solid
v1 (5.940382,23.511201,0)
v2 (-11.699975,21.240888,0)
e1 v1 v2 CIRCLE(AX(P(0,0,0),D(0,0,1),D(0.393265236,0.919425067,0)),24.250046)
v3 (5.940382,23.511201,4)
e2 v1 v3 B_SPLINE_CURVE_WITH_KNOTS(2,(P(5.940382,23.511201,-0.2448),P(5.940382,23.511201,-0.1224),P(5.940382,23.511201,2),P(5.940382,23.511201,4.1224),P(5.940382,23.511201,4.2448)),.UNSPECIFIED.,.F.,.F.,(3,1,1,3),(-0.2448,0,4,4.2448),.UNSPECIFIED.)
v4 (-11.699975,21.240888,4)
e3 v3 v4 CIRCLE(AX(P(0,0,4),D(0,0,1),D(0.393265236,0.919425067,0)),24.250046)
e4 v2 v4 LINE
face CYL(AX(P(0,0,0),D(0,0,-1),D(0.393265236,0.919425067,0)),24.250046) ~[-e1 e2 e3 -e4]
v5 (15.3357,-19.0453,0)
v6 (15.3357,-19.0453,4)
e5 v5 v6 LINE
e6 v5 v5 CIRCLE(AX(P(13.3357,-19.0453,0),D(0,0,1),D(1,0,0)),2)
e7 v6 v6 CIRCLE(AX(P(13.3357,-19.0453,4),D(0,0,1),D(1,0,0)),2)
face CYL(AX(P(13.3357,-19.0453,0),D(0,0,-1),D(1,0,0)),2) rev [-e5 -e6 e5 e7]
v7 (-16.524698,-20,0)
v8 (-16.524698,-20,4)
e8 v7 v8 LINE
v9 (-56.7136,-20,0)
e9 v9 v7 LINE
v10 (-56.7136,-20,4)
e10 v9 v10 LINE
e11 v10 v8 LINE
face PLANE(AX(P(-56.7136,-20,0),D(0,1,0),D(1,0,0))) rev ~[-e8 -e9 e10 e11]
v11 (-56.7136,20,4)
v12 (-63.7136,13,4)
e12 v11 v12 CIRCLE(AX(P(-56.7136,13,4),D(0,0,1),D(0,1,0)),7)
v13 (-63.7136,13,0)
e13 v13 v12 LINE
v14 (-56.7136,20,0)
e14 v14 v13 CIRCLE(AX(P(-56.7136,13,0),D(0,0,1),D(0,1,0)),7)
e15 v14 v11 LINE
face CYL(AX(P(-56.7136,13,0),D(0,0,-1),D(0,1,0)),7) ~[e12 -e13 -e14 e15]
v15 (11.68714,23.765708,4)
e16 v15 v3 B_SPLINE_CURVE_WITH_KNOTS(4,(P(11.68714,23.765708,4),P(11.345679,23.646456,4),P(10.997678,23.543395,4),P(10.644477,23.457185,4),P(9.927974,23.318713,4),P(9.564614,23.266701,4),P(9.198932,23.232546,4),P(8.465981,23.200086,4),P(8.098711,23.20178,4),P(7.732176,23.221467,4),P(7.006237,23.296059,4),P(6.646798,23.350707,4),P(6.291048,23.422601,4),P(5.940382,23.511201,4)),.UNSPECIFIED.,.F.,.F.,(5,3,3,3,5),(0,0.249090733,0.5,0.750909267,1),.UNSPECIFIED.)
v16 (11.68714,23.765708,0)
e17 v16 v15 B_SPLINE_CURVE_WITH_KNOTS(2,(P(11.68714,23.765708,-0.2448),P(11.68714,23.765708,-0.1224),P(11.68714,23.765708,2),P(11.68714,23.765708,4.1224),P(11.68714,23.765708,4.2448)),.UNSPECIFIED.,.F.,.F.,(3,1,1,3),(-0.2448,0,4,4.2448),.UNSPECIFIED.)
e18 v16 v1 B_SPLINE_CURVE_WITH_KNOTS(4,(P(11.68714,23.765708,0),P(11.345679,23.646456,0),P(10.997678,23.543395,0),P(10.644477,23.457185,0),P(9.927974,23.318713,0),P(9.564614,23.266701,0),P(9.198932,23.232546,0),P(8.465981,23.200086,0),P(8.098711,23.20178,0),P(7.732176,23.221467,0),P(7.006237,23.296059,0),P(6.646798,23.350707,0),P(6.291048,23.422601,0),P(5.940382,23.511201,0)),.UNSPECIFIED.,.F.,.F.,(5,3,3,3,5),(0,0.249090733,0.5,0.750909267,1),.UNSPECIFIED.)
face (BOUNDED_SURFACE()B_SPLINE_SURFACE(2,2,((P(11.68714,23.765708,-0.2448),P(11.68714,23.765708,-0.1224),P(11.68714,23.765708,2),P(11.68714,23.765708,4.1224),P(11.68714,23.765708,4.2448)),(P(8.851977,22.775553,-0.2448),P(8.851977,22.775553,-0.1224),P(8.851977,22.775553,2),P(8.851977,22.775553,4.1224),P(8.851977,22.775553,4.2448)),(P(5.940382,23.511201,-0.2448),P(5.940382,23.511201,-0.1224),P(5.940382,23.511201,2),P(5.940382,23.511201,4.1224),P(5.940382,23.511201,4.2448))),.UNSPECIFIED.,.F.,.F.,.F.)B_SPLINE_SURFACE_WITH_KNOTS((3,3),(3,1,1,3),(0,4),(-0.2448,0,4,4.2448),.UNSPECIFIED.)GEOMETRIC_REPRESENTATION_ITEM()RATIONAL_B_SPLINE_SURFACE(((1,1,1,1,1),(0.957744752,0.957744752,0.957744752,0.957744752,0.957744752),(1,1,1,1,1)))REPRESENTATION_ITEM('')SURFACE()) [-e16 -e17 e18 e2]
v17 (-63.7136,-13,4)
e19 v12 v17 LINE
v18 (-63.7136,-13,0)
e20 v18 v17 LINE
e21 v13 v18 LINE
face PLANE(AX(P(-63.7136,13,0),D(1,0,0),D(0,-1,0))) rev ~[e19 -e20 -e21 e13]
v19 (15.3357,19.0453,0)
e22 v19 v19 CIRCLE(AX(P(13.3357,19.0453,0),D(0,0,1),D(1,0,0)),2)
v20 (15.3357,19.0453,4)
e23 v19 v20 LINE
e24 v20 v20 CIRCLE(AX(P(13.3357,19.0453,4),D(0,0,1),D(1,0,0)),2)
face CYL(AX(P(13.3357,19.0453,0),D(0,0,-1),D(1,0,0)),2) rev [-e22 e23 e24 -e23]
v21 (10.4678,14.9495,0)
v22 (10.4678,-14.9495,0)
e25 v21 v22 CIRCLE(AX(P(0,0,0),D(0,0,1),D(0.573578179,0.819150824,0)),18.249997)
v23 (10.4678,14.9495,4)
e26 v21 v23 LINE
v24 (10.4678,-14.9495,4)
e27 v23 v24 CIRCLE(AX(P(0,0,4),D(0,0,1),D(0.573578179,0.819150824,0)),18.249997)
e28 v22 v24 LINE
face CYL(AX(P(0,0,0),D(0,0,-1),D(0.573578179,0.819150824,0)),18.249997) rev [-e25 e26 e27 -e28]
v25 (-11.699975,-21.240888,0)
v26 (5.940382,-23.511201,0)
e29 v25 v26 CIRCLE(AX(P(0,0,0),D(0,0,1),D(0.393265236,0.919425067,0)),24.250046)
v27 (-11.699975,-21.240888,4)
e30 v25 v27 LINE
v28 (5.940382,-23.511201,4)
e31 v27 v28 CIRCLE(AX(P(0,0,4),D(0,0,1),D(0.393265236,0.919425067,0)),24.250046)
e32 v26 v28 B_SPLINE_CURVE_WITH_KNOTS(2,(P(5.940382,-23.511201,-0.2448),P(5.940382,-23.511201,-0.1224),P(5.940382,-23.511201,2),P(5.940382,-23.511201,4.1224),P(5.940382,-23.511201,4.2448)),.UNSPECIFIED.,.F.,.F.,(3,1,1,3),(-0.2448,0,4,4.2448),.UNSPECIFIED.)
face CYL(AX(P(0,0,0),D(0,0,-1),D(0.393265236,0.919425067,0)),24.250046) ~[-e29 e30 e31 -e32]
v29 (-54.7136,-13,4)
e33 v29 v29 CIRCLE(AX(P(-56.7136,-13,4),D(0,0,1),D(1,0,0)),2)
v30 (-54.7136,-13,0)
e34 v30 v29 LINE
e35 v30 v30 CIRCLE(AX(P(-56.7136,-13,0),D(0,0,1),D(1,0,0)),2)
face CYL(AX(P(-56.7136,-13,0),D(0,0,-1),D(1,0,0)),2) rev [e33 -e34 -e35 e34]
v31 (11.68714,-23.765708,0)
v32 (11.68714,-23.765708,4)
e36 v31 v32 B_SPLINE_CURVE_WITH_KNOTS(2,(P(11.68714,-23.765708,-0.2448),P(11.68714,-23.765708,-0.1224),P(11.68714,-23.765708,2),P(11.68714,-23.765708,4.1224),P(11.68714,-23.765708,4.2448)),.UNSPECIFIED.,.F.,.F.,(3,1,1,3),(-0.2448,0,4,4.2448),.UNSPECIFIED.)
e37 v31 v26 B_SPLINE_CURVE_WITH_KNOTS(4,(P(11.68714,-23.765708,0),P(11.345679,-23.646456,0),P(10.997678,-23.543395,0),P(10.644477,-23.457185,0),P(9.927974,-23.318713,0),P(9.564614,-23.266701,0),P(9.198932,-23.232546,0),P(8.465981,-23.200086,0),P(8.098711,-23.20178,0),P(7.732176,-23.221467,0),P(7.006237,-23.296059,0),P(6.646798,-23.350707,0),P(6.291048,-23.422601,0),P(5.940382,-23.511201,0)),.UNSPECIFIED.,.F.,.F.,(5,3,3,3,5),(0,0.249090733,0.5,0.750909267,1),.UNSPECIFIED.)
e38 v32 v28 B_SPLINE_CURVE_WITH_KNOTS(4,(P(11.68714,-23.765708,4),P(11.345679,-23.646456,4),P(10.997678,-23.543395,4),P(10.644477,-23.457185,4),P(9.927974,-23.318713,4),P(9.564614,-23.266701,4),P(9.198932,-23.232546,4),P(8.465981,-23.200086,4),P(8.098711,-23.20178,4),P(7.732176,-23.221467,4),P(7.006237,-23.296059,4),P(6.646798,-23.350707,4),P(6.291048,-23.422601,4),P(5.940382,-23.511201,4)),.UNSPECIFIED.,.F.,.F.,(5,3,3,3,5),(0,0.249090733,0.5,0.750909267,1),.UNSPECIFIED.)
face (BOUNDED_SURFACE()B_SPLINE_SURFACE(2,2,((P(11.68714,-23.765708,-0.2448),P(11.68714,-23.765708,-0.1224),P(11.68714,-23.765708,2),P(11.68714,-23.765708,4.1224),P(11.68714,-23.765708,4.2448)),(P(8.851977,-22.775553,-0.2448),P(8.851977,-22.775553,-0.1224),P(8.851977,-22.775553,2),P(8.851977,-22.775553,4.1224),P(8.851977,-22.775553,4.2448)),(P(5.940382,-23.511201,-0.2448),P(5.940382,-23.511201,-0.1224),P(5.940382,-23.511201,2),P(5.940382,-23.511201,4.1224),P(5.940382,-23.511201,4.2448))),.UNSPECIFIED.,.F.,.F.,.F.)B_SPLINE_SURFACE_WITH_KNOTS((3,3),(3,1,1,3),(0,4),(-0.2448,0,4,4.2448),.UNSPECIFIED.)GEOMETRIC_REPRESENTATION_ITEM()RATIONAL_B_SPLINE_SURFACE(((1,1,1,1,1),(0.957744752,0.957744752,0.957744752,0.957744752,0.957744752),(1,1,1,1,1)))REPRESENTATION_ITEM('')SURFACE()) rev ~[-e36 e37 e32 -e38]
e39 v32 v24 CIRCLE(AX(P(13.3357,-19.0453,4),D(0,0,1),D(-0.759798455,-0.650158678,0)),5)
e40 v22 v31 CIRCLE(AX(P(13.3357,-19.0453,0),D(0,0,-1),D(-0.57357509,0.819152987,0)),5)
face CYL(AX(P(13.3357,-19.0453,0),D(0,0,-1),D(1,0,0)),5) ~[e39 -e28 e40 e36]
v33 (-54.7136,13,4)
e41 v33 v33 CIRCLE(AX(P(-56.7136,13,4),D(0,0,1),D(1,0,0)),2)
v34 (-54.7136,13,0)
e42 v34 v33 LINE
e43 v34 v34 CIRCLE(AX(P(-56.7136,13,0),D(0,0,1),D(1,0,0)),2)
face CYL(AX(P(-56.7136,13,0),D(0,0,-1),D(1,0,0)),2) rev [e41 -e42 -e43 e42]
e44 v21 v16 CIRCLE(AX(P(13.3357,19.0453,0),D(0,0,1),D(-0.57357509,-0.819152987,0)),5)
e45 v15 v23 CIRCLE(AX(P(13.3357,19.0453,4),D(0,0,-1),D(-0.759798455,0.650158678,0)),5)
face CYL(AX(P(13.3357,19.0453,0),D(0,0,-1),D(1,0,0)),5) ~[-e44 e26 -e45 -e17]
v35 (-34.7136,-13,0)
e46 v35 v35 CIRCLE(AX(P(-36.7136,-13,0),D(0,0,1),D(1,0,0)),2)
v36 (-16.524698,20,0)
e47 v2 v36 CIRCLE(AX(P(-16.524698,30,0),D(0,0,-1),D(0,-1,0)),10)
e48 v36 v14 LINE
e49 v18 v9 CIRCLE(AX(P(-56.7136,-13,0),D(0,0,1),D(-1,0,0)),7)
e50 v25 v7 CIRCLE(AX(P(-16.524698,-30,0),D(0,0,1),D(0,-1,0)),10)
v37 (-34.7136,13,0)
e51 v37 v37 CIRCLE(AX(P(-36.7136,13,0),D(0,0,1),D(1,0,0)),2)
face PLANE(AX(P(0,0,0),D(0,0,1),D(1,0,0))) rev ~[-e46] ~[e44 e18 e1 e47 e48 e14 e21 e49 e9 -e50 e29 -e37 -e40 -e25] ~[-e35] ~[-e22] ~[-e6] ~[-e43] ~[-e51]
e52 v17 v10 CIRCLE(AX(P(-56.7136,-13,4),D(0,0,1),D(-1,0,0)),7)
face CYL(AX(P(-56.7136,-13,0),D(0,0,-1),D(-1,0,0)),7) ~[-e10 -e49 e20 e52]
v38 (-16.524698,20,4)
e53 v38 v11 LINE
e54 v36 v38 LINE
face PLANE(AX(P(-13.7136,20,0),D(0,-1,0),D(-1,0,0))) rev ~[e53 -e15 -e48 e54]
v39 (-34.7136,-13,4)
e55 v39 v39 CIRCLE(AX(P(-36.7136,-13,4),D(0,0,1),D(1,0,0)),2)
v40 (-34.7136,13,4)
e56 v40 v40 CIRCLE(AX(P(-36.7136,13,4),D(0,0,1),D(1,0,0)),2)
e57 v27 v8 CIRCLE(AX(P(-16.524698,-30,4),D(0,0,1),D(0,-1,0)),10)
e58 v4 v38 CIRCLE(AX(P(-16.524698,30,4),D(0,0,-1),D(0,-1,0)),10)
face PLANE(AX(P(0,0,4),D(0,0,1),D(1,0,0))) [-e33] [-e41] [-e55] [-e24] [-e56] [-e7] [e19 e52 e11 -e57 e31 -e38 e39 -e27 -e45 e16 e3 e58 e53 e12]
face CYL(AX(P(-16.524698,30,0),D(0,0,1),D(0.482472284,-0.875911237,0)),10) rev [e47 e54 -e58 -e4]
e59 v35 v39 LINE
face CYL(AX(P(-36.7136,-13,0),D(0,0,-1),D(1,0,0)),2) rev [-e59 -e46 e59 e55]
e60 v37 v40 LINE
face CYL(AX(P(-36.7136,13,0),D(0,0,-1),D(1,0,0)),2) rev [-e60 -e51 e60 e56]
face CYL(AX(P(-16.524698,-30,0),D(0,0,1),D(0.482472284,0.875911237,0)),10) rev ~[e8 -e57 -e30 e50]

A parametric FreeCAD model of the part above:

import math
import FreeCAD as App
import Part
import Sketcher
Q = App.Units.Quantity


def edges_at(feature, points):
    """Names of the edges that pass closest to the given points."""
    edges = feature.Shape.Edges
    near = lambda p: min(range(len(edges)), key=lambda i: edges[i].distToShape(Part.Vertex(*p))[0])
    return sorted({f"Edge{near(p) + 1}" for p in points})

doc = App.newDocument("Part")
body = doc.addObject("PartDesign::Body", "Body")

# Sketch on XY plane
sketch1 = body.newObject("Sketcher::SketchObject", "Sketch")
sketch1.AttachmentSupport = (doc.getObject("XY_Plane"), [""])
sketch1.MapMode = "FlatFace"
sketch1.addGeometry([
    Part.ArcOfCircle(Part.Circle(App.Vector(13.3, 19, 0), App.Vector(0, 0, 1), 5), math.radians(-125), math.radians(139)),  # 0
    Part.ArcOfCircle(Part.Circle(App.Vector(0, 0, 0), App.Vector(0, 0, 1), 24.3), math.radians(67), math.radians(124)),  # 1
    Part.LineSegment(App.Vector(-13.7, 20, 0), App.Vector(-56.7, 20, 0)),  # 2
    Part.ArcOfCircle(Part.Circle(App.Vector(-56.7, 13, 0), App.Vector(0, 0, 1), 7), math.radians(90), math.radians(180)),  # 3
    Part.LineSegment(App.Vector(-63.7, 13, 0), App.Vector(-63.7, -13, 0)),  # 4
    Part.ArcOfCircle(Part.Circle(App.Vector(-56.7, -13, 0), App.Vector(0, 0, 1), 7), math.radians(180), math.radians(270)),  # 5
    Part.LineSegment(App.Vector(-56.7, -20, 0), App.Vector(-13.7, -20, 0)),  # 6
    Part.ArcOfCircle(Part.Circle(App.Vector(0, 0, 0), App.Vector(0, 0, 1), 24.3), math.radians(-124), math.radians(-67)),  # 7
    Part.ArcOfCircle(Part.Circle(App.Vector(13.3, -19, 0), App.Vector(0, 0, 1), 5), math.radians(-139), math.radians(125)),  # 8
    Part.ArcOfCircle(Part.Circle(App.Vector(0, 0, 0), App.Vector(0, 0, 1), 18.2), math.radians(55), math.radians(305)),  # 9
    Part.Circle(App.Vector(13.3, 19, 0), App.Vector(0, 0, 1), 2),  # 10
    Part.Circle(App.Vector(13.3, -19, 0), App.Vector(0, 0, 1), 2),  # 11
    Part.Circle(App.Vector(-36.7, 13, 0), App.Vector(0, 0, 1), 2),  # 12
    Part.Circle(App.Vector(-56.7, -13, 0), App.Vector(0, 0, 1), 2),  # 13
    Part.Circle(App.Vector(-36.7, -13, 0), App.Vector(0, 0, 1), 2),  # 14
    Part.Circle(App.Vector(-56.7, 13, 0), App.Vector(0, 0, 1), 2),  # 15
], False)
sketch1.addConstraint([
    Sketcher.Constraint("Coincident", 0, 2, 1, 1),
    Sketcher.Constraint("Coincident", 1, 2, 2, 1),
    Sketcher.Constraint("Tangent", 2, 2, 3, 1),
    Sketcher.Constraint("Tangent", 3, 2, 4, 1),
    Sketcher.Constraint("Tangent", 4, 2, 5, 1),
    Sketcher.Constraint("Tangent", 5, 2, 6, 1),
    Sketcher.Constraint("Coincident", 6, 2, 7, 1),
    Sketcher.Constraint("Coincident", 7, 2, 8, 1),
    Sketcher.Constraint("Tangent", 8, 2, 9, 2),
    Sketcher.Constraint("Tangent", 9, 1, 0, 1),
    Sketcher.Constraint("Horizontal", 2),
    Sketcher.Constraint("Vertical", 4),
    Sketcher.Constraint("Horizontal", 6),
    Sketcher.Constraint("Coincident", 1, 3, -1, 1),
    Sketcher.Constraint("Coincident", 7, 3, -1, 1),
    Sketcher.Constraint("Coincident", 9, 3, -1, 1),
    Sketcher.Constraint("Coincident", 10, 3, 0, 3),
    Sketcher.Constraint("Coincident", 11, 3, 8, 3),
    Sketcher.Constraint("Coincident", 13, 3, 5, 3),
    Sketcher.Constraint("Coincident", 15, 3, 3, 3),
    Sketcher.Constraint("Equal", 3, 5),
    Sketcher.Constraint("Equal", 1, 7),
    Sketcher.Constraint("Equal", 0, 8),
    Sketcher.Constraint("Equal", 10, 11),
    Sketcher.Constraint("Equal", 11, 12),
    Sketcher.Constraint("Equal", 12, 13),
    Sketcher.Constraint("Equal", 13, 14),
    Sketcher.Constraint("Equal", 14, 15),
    Sketcher.Constraint("Symmetric", 12, 3, 14, 3, -1),
    Sketcher.Constraint("Horizontal", 3, 3, 12, 3),
    Sketcher.Constraint("Horizontal", 13, 3, 14, 3),
    Sketcher.Constraint("Vertical", 0, 3, 8, 3),
    Sketcher.Constraint("Diameter", 10, Q("4 mm")),
    Sketcher.Constraint("Radius", 0, Q("5 mm")),
    Sketcher.Constraint("Radius", 3, Q("7 mm")),
    Sketcher.Constraint("Radius", 9, Q("18.25 mm")),
    Sketcher.Constraint("DistanceY", -1, 1, 1, 2, Q("20 mm")),
    Sketcher.Constraint("DistanceX", 3, 3, 12, 3, Q("20 mm")),
    Sketcher.Constraint("DistanceX", 2, 2, 2, 1, Q("43 mm")),
    Sketcher.Constraint("Radius", 1, Q("24.25 mm")),
    Sketcher.Constraint("DistanceY", -1, 1, 0, 2, Q("22.296 mm")),
])
pad1 = body.newObject("PartDesign::Pad", "Pad")
pad1.Profile = sketch1
pad1.Length = 4
doc.recompute()

fillet = body.newObject("PartDesign::Fillet", "Fillet")
fillet.Base = (pad1, edges_at(pad1, [
    (9.537, 22.296, 2),
    (-13.714, 20, 2),
    (9.537, -22.296, 2),
    (-13.714, -20, 2),
]))
fillet.Radius = 10

doc.recompute()
